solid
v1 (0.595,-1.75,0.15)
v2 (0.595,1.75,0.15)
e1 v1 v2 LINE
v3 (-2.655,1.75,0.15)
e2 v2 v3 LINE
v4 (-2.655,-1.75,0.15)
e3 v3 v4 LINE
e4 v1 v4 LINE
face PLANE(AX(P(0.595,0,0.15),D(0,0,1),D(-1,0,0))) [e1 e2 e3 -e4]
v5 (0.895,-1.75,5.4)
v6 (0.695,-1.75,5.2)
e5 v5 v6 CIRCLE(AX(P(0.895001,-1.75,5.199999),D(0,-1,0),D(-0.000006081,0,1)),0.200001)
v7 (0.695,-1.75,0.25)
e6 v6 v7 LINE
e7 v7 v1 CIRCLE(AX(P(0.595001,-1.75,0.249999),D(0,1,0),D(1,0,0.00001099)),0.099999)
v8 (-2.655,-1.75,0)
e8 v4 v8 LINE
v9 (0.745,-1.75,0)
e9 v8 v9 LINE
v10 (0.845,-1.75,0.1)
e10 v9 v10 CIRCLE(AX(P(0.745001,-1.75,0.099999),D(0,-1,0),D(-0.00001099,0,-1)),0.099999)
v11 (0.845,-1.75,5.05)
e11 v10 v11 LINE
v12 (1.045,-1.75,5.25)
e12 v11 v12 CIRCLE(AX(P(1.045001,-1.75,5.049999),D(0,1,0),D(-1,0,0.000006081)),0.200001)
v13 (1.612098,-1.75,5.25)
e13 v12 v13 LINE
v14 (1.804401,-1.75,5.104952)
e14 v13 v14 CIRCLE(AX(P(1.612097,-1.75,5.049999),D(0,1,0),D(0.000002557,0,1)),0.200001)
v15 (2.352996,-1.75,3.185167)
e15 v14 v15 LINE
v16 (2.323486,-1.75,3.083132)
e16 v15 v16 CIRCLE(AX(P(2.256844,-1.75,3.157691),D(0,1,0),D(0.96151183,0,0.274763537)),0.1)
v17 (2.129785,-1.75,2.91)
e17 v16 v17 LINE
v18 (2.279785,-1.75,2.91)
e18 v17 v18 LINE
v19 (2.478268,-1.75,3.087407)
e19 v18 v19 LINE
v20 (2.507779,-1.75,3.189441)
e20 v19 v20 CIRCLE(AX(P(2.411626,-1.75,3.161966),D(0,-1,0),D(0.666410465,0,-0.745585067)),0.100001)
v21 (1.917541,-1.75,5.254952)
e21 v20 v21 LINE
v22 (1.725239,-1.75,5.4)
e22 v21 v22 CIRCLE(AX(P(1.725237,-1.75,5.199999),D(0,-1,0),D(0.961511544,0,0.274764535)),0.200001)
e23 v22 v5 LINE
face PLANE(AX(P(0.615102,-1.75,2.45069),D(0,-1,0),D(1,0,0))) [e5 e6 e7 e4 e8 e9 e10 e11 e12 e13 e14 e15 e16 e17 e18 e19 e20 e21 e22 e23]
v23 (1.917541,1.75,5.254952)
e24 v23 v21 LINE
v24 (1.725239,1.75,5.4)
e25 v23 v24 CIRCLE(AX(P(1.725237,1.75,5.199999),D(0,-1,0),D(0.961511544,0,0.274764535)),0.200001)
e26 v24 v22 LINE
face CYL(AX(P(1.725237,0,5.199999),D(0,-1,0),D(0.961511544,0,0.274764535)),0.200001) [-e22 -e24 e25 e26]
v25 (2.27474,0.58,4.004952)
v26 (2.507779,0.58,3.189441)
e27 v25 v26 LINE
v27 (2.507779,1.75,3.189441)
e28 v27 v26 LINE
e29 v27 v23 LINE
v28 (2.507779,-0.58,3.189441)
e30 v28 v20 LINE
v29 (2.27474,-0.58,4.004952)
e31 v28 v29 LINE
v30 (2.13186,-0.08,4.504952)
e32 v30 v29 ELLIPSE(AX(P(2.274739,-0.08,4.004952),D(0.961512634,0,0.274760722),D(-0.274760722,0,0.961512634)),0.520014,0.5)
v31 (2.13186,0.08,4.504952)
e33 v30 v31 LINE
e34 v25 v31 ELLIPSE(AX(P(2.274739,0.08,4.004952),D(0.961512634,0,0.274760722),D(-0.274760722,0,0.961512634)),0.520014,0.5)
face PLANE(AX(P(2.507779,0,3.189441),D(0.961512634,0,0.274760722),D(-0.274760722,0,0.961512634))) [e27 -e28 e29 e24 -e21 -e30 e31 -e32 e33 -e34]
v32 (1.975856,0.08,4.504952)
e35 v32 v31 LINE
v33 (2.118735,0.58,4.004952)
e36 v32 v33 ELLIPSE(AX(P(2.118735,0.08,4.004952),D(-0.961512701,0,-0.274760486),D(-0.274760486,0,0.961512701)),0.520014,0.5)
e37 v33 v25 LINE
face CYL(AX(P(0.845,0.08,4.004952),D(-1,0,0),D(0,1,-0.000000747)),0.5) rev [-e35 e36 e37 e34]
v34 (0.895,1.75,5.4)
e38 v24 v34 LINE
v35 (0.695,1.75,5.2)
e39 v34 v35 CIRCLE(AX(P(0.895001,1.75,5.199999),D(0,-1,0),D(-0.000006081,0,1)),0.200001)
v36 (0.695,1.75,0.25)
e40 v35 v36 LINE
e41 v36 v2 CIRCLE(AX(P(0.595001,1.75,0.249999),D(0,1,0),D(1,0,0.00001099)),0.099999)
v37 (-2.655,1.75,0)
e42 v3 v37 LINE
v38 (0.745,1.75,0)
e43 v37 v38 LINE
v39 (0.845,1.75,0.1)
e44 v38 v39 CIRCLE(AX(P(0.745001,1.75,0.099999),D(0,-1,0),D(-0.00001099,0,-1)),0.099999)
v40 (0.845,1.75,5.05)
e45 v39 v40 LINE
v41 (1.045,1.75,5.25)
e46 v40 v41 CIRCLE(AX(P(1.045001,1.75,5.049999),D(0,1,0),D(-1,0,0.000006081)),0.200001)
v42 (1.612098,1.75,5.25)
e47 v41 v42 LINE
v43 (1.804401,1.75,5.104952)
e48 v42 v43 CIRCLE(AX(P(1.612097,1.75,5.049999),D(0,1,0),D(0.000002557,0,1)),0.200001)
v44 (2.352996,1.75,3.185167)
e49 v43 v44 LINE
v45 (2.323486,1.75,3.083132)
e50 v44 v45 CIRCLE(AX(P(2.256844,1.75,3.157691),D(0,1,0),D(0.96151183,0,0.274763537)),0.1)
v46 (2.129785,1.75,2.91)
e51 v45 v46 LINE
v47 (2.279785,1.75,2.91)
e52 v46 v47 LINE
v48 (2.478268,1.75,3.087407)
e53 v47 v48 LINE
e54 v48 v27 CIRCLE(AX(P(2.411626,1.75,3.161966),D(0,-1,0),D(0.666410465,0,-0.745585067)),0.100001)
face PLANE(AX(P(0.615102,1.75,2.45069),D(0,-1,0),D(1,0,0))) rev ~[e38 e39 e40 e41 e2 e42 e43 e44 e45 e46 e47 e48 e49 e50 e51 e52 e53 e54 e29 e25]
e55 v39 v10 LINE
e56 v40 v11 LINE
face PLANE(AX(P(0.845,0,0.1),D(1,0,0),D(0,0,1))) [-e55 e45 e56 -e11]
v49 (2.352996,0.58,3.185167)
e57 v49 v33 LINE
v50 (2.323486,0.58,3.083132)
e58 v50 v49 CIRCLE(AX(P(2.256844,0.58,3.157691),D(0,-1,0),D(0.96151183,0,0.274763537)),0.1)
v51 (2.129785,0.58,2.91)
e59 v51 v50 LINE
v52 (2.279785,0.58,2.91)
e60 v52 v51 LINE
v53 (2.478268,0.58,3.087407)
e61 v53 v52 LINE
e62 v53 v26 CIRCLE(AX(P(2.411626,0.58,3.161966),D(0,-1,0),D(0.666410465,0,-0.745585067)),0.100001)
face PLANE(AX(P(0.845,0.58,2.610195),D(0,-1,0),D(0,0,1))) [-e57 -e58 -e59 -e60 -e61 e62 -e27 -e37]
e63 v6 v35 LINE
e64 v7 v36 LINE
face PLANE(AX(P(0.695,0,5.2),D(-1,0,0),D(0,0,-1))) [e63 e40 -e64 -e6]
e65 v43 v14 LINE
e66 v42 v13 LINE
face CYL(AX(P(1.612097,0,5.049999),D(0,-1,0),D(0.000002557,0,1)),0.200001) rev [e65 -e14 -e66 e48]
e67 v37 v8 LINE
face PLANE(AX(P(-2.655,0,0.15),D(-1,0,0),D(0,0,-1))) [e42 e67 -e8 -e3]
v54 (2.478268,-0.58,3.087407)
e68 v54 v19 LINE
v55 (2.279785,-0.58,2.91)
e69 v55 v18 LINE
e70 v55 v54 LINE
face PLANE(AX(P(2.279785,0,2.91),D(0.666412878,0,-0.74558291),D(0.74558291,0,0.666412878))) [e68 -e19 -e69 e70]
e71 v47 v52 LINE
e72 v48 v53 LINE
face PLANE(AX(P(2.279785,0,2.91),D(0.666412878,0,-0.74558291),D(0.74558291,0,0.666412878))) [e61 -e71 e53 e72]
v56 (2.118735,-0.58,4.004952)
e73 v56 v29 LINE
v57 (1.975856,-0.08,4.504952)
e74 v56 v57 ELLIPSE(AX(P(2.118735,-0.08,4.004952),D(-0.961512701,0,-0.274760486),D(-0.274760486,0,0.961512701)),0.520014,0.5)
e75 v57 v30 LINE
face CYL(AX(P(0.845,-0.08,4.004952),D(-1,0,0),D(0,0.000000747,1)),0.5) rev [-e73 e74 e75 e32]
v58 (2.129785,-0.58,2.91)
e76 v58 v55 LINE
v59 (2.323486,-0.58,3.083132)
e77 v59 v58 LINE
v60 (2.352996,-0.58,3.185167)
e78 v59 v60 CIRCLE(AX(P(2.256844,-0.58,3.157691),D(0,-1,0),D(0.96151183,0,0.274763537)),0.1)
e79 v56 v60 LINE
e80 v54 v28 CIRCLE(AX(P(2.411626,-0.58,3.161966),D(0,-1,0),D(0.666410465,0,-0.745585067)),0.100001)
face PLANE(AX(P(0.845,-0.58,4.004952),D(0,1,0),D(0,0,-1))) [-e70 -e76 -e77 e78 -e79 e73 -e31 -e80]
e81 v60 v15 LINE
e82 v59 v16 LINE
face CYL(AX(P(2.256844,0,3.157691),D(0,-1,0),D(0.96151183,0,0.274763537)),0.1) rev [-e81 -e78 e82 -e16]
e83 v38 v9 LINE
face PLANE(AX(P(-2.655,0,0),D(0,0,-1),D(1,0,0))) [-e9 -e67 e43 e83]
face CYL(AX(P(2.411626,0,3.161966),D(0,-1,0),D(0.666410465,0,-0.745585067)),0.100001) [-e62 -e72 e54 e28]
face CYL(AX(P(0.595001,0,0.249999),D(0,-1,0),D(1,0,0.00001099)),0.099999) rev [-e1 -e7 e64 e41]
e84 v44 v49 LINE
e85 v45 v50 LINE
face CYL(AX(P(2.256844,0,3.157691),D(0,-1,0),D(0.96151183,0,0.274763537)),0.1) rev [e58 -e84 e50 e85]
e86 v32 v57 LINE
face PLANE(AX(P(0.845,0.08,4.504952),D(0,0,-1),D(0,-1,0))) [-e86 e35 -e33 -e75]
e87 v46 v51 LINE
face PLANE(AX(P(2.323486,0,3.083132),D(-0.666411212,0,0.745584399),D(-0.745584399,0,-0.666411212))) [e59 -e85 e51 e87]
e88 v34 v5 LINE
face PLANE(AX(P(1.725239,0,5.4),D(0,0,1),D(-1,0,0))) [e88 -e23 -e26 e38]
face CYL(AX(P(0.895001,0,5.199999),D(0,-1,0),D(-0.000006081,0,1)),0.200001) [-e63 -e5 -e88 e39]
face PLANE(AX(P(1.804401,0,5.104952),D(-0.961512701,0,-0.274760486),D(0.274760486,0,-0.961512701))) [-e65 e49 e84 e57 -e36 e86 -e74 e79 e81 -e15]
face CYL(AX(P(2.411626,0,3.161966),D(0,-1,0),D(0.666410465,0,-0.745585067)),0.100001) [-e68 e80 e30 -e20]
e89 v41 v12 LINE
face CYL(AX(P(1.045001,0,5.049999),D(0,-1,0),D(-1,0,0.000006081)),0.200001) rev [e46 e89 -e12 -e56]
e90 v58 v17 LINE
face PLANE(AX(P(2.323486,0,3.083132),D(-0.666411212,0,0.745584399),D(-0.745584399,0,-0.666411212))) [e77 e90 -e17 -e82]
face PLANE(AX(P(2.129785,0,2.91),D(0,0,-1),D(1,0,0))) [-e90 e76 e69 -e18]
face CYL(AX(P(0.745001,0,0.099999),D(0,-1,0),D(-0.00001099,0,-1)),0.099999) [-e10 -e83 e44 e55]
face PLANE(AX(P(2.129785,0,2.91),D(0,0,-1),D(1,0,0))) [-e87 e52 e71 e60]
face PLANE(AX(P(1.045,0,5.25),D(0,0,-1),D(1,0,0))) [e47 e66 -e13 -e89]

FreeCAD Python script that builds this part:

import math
import FreeCAD as App
import Part
import Sketcher

V = App.Vector

doc = App.newDocument("Part")
body = doc.addObject("PartDesign::Body", "Body")

# Sketch on XZ plane
sketch1 = body.newObject("Sketcher::SketchObject", "Sketch")
sketch1.AttachmentSupport = (doc.getObject("XZ_Plane"), [""])
sketch1.MapMode = "FlatFace"
sketch1.addGeometry([
    Part.LineSegment(V(0.59, 0.15, 0), V(-2.65, 0.15, 0)),  # 0
    Part.LineSegment(V(-2.65, 0.15, 0), V(-2.65, 0, 0)),  # 1
    Part.LineSegment(V(-2.65, 0, 0), V(0.74, 0, 0)),  # 2
    Part.ArcOfCircle(Part.Circle(V(0.75, 0.1, 0), V(0, 0, 1), 0.1), math.radians(-90), math.radians(0)),  # 3
    Part.LineSegment(V(0.84, 0.1, 0), V(0.84, 5.05, 0)),  # 4
    Part.ArcOfCircle(Part.Circle(V(1.05, 5.05, 0), V(0, 0, 1), 0.2), math.radians(90), math.radians(180)),  # 5
    Part.LineSegment(V(1.04, 5.25, 0), V(1.61, 5.25, 0)),  # 6
    Part.ArcOfCircle(Part.Circle(V(1.61, 5.05, 0), V(0, 0, 1), 0.2), math.radians(16), math.radians(90)),  # 7
    Part.LineSegment(V(1.8, 5.1, 0), V(2.35, 3.19, 0)),  # 8
    Part.ArcOfCircle(Part.Circle(V(2.26, 3.16, 0), V(0, 0, 1), 0.1), math.radians(-48), math.radians(16)),  # 9
    Part.LineSegment(V(2.32, 3.08, 0), V(2.13, 2.91, 0)),  # 10
    Part.LineSegment(V(2.13, 2.91, 0), V(2.28, 2.91, 0)),  # 11
    Part.LineSegment(V(2.28, 2.91, 0), V(2.48, 3.09, 0)),  # 12
    Part.ArcOfCircle(Part.Circle(V(2.41, 3.16, 0), V(0, 0, 1), 0.1), math.radians(-48), math.radians(16)),  # 13
    Part.LineSegment(V(2.51, 3.19, 0), V(1.92, 5.25, 0)),  # 14
    Part.ArcOfCircle(Part.Circle(V(1.73, 5.2, 0), V(0, 0, 1), 0.2), math.radians(16), math.radians(90)),  # 15
    Part.LineSegment(V(1.73, 5.4, 0), V(0.9, 5.4, 0)),  # 16
    Part.ArcOfCircle(Part.Circle(V(0.9, 5.2, 0), V(0, 0, 1), 0.2), math.radians(90), math.radians(180)),  # 17
    Part.LineSegment(V(0.69, 5.2, 0), V(0.69, 0.25, 0)),  # 18
    Part.ArcOfCircle(Part.Circle(V(0.6, 0.25, 0), V(0, 0, 1), 0.1), math.radians(-90), math.radians(0)),  # 19
], False)
sketch1.addConstraint([
    Sketcher.Constraint("Coincident", 0, 2, 1, 1),
    Sketcher.Constraint("Coincident", 1, 2, 2, 1),
    Sketcher.Constraint("Coincident", 2, 2, 3, 1),
    Sketcher.Constraint("Coincident", 3, 2, 4, 1),
    Sketcher.Constraint("Coincident", 4, 2, 5, 2),
    Sketcher.Constraint("Coincident", 5, 1, 6, 1),
    Sketcher.Constraint("Coincident", 6, 2, 7, 2),
    Sketcher.Constraint("Coincident", 7, 1, 8, 1),
    Sketcher.Constraint("Coincident", 8, 2, 9, 2),
    Sketcher.Constraint("Coincident", 9, 1, 10, 1),
    Sketcher.Constraint("Coincident", 10, 2, 11, 1),
    Sketcher.Constraint("Coincident", 11, 2, 12, 1),
    Sketcher.Constraint("Coincident", 12, 2, 13, 1),
    Sketcher.Constraint("Coincident", 13, 2, 14, 1),
    Sketcher.Constraint("Coincident", 14, 2, 15, 1),
    Sketcher.Constraint("Coincident", 15, 2, 16, 1),
    Sketcher.Constraint("Coincident", 16, 2, 17, 1),
    Sketcher.Constraint("Coincident", 17, 2, 18, 1),
    Sketcher.Constraint("Coincident", 18, 2, 19, 2),
    Sketcher.Constraint("Coincident", 19, 1, 0, 1),
    Sketcher.Constraint("Horizontal", 0),
    Sketcher.Constraint("Vertical", 1),
    Sketcher.Constraint("Horizontal", 2),
    Sketcher.Constraint("Vertical", 4),
    Sketcher.Constraint("Horizontal", 6),
    Sketcher.Constraint("Horizontal", 11),
    Sketcher.Constraint("Horizontal", 16),
    Sketcher.Constraint("Vertical", 18),
    Sketcher.Constraint("Equal", 5, 7),
    Sketcher.Constraint("Equal", 3, 9),
    Sketcher.Constraint("Equal", 9, 13),
    Sketcher.Constraint("Equal", 7, 15),
    Sketcher.Constraint("Equal", 15, 17),
    Sketcher.Constraint("Equal", 9, 19),
    Sketcher.Constraint("PointOnObject", 1, 2, -1),
    Sketcher.Constraint("Parallel", 8, 14),
    Sketcher.Constraint("Horizontal", 7, 3, 4, 2),
    Sketcher.Constraint("Horizontal", 15, 3, 17, 2),
    Sketcher.Constraint("Horizontal", 19, 3, 18, 2),
    Sketcher.Constraint("Vertical", 3, 3, 2, 2),
    Sketcher.Constraint("Vertical", 7, 3, 6, 2),
    Sketcher.Constraint("Vertical", 17, 3, 16, 2),
    Sketcher.Constraint("Equal", 11, 1),
    Sketcher.Constraint("Equal", 4, 18),
    Sketcher.Constraint("Radius", 3, 0.099999),
    Sketcher.Constraint("Radius", 5, 0.200001),
    Sketcher.Constraint("DistanceX", 2, 1, 2, 2, 3.4),
    Sketcher.Constraint("DistanceX", 0, 2, 0, 1, 3.25),
    Sketcher.Constraint("DistanceX", 11, 1, 11, 2, 0.15),
    Sketcher.Constraint("DistanceY", 4, 1, 4, 2, 4.95),
    Sketcher.Constraint("DistanceY", -1, 1, 3, 2, 0.1),
    Sketcher.Constraint("DistanceX", 4, 2, 5, 1, 0.2),
    Sketcher.Constraint("DistanceX", 19, 1, 18, 2, 0.1),
    Sketcher.Constraint("DistanceY", -1, 1, 10, 2, 2.91),
    Sketcher.Constraint("DistanceY", 7, 1, 14, 2, 0.15),
    Sketcher.Constraint("DistanceX", 6, 1, 6, 2, 0.567098),
    Sketcher.Constraint("DistanceX", -1, 1, 3, 3, 0.745001),
    Sketcher.Constraint("DistanceX", 16, 2, 16, 1, 0.830239),
    Sketcher.Constraint("DistanceX", -1, 1, 7, 1, 1.804401),
    Sketcher.Constraint("DistanceY", 13, 3, 8, 2, 0.023201),
    Sketcher.Constraint("DistanceX", 7, 3, 8, 2, 0.740899),
    Sketcher.Constraint("DistanceX", 10, 2, 9, 1, 0.193701),
    Sketcher.Constraint("DistanceX", 15, 2, 14, 2, 0.192302),
    Sketcher.Constraint("Distance", 8, 1.99663),
    Sketcher.Constraint("Distance", 12, 0.266212),
    Sketcher.Constraint("Distance", 14, 2.148189),
    Sketcher.Constraint("DistanceY", -1, 1, 9, 3, 3.157691),
    Sketcher.Constraint("DistanceY", -1, 1, 9, 1, 3.083132),
])
pad1 = body.newObject("PartDesign::Pad", "Pad")
pad1.Profile = sketch1
pad1.Type = "TwoLengths"
pad1.Length = 1.75
pad1.Length2 = 1.75

# Sketch on YZ plane
sketch2 = body.newObject("Sketcher::SketchObject", "Sketch001")
sketch2.AttachmentSupport = (doc.getObject("YZ_Plane"), [""])
sketch2.MapMode = "FlatFace"
sketch2.AttachmentOffset = App.Placement(V(0, 0, 0.845), App.Rotation())
sketch2.addGeometry([
    Part.LineSegment(V(-0.58, 4, 0), V(-0.58, 2.61, 0)),  # 0
    Part.LineSegment(V(-0.58, 2.61, 0), V(0.58, 2.61, 0)),  # 1
    Part.LineSegment(V(0.58, 2.61, 0), V(0.58, 4, 0)),  # 2
    Part.ArcOfCircle(Part.Circle(V(0.08, 4, 0), V(0, 0, 1), 0.5), math.radians(0), math.radians(90)),  # 3
    Part.LineSegment(V(0.08, 4.5, 0), V(-0.08, 4.5, 0)),  # 4
    Part.ArcOfCircle(Part.Circle(V(-0.08, 4, 0), V(0, 0, 1), 0.5), math.radians(90), math.radians(180)),  # 5
], False)
sketch2.addConstraint([
    Sketcher.Constraint("Coincident", 0, 2, 1, 1),
    Sketcher.Constraint("Coincident", 1, 2, 2, 1),
    Sketcher.Constraint("Tangent", 2, 2, 3, 1),
    Sketcher.Constraint("Tangent", 3, 2, 4, 1),
    Sketcher.Constraint("Tangent", 4, 2, 5, 1),
    Sketcher.Constraint("Tangent", 5, 2, 0, 1),
    Sketcher.Constraint("Vertical", 0),
    Sketcher.Constraint("Horizontal", 1),
    Sketcher.Constraint("Vertical", 2),
    Sketcher.Constraint("Horizontal", 4),
    Sketcher.Constraint("Equal", 3, 5),
    Sketcher.Constraint("Radius", 3, 0.5),
    Sketcher.Constraint("DistanceX", 1, 1, 1, 2, 1.16),
    Sketcher.Constraint("DistanceX", -1, 1, 3, 3, 0.08),
    Sketcher.Constraint("DistanceY", 0, 2, 0, 1, 1.394757),
    Sketcher.Constraint("DistanceY", -1, 1, 3, 2, 4.504952),
])
pocket1 = body.newObject("PartDesign::Pocket", "Pocket")
pocket1.Profile = sketch2
pocket1.Length = 25
pocket1.Reversed = True

doc.recompute()
